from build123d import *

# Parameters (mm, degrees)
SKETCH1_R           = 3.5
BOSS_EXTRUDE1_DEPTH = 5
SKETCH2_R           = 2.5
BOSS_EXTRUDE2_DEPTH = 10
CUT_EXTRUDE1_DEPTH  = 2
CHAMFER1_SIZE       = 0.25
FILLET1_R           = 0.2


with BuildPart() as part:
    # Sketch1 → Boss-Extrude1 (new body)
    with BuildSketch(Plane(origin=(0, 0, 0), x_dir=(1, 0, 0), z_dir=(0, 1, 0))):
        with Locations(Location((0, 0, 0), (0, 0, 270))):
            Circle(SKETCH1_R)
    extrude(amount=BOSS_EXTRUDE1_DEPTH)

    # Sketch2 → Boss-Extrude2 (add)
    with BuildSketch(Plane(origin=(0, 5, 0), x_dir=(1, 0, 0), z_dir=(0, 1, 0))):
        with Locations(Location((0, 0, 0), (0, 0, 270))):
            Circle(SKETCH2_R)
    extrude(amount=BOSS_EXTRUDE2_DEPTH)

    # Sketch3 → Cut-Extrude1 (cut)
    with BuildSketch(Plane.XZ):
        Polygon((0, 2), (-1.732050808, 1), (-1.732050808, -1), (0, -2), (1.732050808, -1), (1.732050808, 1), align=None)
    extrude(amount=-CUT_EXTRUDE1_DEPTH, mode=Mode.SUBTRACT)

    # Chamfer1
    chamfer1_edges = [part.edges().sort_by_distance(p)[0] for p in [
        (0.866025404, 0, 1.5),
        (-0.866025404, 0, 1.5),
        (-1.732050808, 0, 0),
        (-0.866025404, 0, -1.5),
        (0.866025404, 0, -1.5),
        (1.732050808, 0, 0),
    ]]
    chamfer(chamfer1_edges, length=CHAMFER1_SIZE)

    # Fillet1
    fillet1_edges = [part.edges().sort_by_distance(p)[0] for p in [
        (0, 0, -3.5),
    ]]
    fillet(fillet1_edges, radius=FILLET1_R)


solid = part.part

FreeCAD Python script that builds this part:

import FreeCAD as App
import Part
import Sketcher
Q = App.Units.Quantity


def edges_at(feature, points):
    """Names of the edges that pass closest to the given points."""
    edges = feature.Shape.Edges
    near = lambda p: min(range(len(edges)), key=lambda i: edges[i].distToShape(Part.Vertex(*p))[0])
    return sorted({f"Edge{near(p) + 1}" for p in points})

doc = App.newDocument("Part")
body = doc.addObject("PartDesign::Body", "Body")

sketch1 = body.newObject("Sketcher::SketchObject", "Sketch")
sketch1.AttachmentSupport = (doc.getObject("XZ_Plane"), [""])
sketch1.MapMode = "FlatFace"
sketch1.addGeometry(Part.Circle(App.Vector(0, 0, 0), App.Vector(0, 0, 1), 3.5), False)
sketch1.addConstraint([
    Sketcher.Constraint("Coincident", 0, 3, -1, 1),
    Sketcher.Constraint("Diameter", 0, 7.0),
])
pad1 = body.newObject("PartDesign::Pad", "Pad")
pad1.Profile = sketch1
pad1.Length = 5
pad1.Reversed = True

sketch2 = body.newObject("Sketcher::SketchObject", "Sketch001")
sketch2.AttachmentSupport = (doc.getObject("XZ_Plane"), [""])
sketch2.MapMode = "FlatFace"
sketch2.AttachmentOffset = App.Placement(App.Vector(0, 0, -5), App.Rotation())
sketch2.addGeometry(Part.Circle(App.Vector(0, 0, 0), App.Vector(0, 0, 1), 2.5), False)
sketch2.addConstraint([
    Sketcher.Constraint("Coincident", 0, 3, -1, 1),
    Sketcher.Constraint("Diameter", 0, 5.0),
])
pad2 = body.newObject("PartDesign::Pad", "Pad001")
pad2.Profile = sketch2
pad2.Length = 10
pad2.Reversed = True

sketch3 = body.newObject("Sketcher::SketchObject", "Sketch002")
sketch3.AttachmentSupport = (doc.getObject("XZ_Plane"), [""])
sketch3.MapMode = "FlatFace"
sketch3.addGeometry([
    Part.LineSegment(App.Vector(0, 2, 0), App.Vector(-1.7, 1, 0)),
    Part.LineSegment(App.Vector(-1.7, 1, 0), App.Vector(-1.7, -1, 0)),
    Part.LineSegment(App.Vector(-1.7, -1, 0), App.Vector(0, -2, 0)),
    Part.LineSegment(App.Vector(0, -2, 0), App.Vector(1.7, -1, 0)),
    Part.LineSegment(App.Vector(1.7, -1, 0), App.Vector(1.7, 1, 0)),
    Part.LineSegment(App.Vector(1.7, 1, 0), App.Vector(0, 2, 0)),
], False)
sketch3.addConstraint([
    Sketcher.Constraint("Coincident", 0, 2, 1, 1),
    Sketcher.Constraint("Coincident", 1, 2, 2, 1),
    Sketcher.Constraint("Coincident", 2, 2, 3, 1),
    Sketcher.Constraint("Coincident", 3, 2, 4, 1),
    Sketcher.Constraint("Coincident", 4, 2, 5, 1),
    Sketcher.Constraint("Coincident", 5, 2, 0, 1),
    Sketcher.Constraint("Vertical", 1),
    Sketcher.Constraint("Vertical", 4),
    Sketcher.Constraint("Symmetric", 0, 2, 3, 2, -1, 1),
    Sketcher.Constraint("Symmetric", 2, 2, 5, 2, -1, 1),
    Sketcher.Constraint("PointOnObject", 2, 2, -2),
    Sketcher.Constraint("Parallel", 2, 5),
    Sketcher.Constraint("Horizontal", 1, 2, 3, 2),
    Sketcher.Constraint("DistanceY", 1, 2, 1, 1, 2.0),
    Sketcher.Constraint("Angle", 0, Q("-150 deg")),
    Sketcher.Constraint("Distance", 0, 2.0),
])
pocket1 = body.newObject("PartDesign::Pocket", "Pocket")
pocket1.Profile = sketch3
pocket1.Length = 2
doc.recompute()

chamfer = body.newObject("PartDesign::Chamfer", "Chamfer")
chamfer.Base = (pocket1, edges_at(pocket1, [
    (0.866, 0, 1.5),
    (-0.866, 0, 1.5),
    (-1.732, 0, 0),
    (-0.866, 0, -1.5),
    (0.866, 0, -1.5),
    (1.732, 0, 0),
]))
chamfer.Size = 0.25
doc.recompute()

fillet = body.newObject("PartDesign::Fillet", "Fillet")
fillet.Base = (chamfer, edges_at(chamfer, [(0, 0, -3.5)]))
fillet.Radius = 0.2

doc.recompute()
